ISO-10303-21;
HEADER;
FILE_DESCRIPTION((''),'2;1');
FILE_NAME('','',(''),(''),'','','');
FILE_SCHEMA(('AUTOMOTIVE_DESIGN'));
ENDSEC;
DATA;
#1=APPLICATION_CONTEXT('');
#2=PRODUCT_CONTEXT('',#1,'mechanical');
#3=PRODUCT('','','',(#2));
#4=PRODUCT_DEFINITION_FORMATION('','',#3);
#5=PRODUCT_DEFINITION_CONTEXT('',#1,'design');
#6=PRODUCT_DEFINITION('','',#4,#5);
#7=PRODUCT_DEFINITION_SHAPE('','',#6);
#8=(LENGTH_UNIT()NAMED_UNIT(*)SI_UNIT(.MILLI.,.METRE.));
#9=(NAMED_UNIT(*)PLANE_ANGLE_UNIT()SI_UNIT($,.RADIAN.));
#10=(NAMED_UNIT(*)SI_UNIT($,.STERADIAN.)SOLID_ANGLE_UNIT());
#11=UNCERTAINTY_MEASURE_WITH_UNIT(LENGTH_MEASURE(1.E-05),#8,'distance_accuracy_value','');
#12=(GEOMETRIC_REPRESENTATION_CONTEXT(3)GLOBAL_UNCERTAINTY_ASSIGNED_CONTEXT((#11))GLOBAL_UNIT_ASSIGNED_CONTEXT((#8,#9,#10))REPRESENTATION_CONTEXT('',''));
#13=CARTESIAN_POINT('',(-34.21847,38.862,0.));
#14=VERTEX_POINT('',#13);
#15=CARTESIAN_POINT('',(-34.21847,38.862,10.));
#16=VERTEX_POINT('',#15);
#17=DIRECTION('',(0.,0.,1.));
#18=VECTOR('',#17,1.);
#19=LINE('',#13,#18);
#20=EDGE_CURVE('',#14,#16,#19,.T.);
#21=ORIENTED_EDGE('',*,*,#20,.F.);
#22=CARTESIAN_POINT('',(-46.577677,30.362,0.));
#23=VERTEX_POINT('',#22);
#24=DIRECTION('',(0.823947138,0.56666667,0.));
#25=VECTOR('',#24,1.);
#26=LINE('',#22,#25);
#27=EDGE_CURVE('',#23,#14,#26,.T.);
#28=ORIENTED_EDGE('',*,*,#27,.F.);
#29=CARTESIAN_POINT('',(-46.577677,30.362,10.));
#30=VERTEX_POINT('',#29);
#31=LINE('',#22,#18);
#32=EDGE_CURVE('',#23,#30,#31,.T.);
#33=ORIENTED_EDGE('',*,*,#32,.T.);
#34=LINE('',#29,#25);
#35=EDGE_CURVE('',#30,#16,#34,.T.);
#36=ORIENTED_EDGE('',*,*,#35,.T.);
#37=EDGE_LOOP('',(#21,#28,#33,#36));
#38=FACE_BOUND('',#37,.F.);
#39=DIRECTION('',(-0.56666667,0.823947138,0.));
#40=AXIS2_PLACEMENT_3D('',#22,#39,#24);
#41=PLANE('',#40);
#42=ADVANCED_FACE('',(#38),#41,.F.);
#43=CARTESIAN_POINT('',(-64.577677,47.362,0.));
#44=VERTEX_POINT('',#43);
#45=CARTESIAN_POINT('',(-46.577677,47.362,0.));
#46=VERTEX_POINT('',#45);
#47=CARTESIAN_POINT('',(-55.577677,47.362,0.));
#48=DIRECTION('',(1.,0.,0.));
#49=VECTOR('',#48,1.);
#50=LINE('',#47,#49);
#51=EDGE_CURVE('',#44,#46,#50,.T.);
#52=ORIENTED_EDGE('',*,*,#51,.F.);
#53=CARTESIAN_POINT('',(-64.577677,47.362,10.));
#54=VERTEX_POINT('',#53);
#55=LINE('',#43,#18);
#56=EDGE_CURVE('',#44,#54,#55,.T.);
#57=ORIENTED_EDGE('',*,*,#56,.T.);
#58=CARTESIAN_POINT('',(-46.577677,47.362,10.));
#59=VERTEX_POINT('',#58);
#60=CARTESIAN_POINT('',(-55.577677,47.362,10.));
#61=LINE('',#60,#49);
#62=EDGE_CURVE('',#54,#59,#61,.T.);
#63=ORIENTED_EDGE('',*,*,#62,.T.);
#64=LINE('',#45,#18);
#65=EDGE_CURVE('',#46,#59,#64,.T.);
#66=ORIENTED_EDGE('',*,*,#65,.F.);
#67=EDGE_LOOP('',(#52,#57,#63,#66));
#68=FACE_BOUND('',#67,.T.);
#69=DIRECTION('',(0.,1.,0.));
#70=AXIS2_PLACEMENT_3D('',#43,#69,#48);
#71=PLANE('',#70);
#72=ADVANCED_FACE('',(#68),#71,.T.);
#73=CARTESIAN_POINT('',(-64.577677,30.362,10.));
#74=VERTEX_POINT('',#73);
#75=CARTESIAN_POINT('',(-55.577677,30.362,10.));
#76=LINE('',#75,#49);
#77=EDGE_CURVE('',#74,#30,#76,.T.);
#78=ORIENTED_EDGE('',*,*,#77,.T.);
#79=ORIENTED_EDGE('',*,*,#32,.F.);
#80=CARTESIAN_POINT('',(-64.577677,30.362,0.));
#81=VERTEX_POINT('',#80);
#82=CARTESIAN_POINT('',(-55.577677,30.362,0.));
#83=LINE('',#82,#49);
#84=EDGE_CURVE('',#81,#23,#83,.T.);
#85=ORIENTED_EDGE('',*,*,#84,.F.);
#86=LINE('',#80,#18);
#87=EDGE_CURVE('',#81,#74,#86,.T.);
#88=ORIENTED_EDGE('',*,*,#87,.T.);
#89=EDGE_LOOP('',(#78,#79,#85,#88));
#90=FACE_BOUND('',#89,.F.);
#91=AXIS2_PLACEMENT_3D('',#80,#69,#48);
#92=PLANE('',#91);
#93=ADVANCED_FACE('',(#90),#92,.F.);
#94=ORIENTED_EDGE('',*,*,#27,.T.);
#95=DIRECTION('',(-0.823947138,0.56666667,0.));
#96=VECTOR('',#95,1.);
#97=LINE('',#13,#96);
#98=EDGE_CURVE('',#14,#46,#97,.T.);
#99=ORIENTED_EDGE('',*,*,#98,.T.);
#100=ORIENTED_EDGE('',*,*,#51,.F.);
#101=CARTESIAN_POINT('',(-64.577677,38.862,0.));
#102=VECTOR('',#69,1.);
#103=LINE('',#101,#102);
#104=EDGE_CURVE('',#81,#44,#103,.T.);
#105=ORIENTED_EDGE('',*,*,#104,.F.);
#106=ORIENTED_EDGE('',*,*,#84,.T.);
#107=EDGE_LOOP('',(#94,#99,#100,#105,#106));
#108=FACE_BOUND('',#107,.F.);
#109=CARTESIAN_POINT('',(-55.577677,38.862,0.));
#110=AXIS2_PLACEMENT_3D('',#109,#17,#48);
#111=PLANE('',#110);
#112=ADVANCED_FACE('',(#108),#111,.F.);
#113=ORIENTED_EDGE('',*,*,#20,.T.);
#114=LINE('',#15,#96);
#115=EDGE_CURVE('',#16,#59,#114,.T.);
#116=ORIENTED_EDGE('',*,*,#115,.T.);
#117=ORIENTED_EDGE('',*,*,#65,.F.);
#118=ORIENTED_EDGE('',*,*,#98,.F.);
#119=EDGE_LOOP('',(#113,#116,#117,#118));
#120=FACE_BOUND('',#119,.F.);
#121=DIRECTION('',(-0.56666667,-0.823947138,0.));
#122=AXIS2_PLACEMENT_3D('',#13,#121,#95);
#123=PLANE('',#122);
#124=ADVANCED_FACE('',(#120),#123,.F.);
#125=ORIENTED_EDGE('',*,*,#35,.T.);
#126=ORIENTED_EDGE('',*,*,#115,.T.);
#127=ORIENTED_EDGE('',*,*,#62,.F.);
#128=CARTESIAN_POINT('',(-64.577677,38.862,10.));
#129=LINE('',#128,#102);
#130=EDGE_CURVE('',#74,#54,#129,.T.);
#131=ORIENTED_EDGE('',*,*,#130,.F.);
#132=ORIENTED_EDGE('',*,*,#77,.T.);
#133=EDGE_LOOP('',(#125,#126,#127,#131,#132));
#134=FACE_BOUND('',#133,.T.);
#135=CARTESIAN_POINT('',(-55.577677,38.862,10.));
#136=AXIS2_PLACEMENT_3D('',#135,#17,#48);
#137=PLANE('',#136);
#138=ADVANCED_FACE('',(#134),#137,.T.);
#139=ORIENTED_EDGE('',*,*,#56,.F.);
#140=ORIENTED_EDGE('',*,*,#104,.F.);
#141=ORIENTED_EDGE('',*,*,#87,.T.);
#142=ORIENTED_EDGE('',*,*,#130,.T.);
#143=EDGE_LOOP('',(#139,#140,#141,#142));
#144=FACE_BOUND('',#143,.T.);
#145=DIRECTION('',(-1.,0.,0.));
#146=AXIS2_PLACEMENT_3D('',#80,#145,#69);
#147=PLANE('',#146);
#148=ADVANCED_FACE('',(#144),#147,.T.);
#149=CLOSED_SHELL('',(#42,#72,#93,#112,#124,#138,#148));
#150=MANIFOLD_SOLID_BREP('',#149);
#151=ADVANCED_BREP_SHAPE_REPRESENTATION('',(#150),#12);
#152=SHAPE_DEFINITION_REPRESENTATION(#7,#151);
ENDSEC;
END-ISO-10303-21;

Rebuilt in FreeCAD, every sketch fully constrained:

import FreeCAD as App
import Part
import Sketcher

V = App.Vector
Q = App.Units.Quantity

doc = App.newDocument("Part")
body = doc.addObject("PartDesign::Body", "Body")

sketch1 = body.newObject("Sketcher::SketchObject", "Sketch")
sketch1.AttachmentSupport = (doc.getObject("XY_Plane"), [""])
sketch1.MapMode = "FlatFace"
sketch1.addGeometry([
    Part.LineSegment(V(-65, 47, 0), V(-65, 30, 0)),
    Part.LineSegment(V(-65, 30, 0), V(-47, 30, 0)),
    Part.LineSegment(V(-47, 30, 0), V(-34, 39, 0)),
    Part.LineSegment(V(-34, 39, 0), V(-47, 47, 0)),
    Part.LineSegment(V(-47, 47, 0), V(-65, 47, 0)),
], False)
sketch1.addConstraint([
    Sketcher.Constraint("Coincident", 0, 2, 1, 1),
    Sketcher.Constraint("Coincident", 1, 2, 2, 1),
    Sketcher.Constraint("Coincident", 2, 2, 3, 1),
    Sketcher.Constraint("Coincident", 3, 2, 4, 1),
    Sketcher.Constraint("Coincident", 4, 2, 0, 1),
    Sketcher.Constraint("Vertical", 0),
    Sketcher.Constraint("Horizontal", 1),
    Sketcher.Constraint("Horizontal", 4),
    Sketcher.Constraint("Vertical", 1, 2, 3, 2),
    Sketcher.Constraint("Equal", 2, 3),
    Sketcher.Constraint("DistanceX", 1, 1, 1, 2, Q("18 mm")),
    Sketcher.Constraint("DistanceY", 0, 2, 0, 1, Q("17 mm")),
    Sketcher.Constraint("Distance", 2, Q("15 mm")),
    Sketcher.Constraint("DistanceY", -1, 1, 0, 2, Q("30.362 mm")),
    Sketcher.Constraint("DistanceX", 2, 2, -1, 1, Q("34.21847 mm")),
])
pad1 = body.newObject("PartDesign::Pad", "Pad")
pad1.Profile = sketch1
pad1.Length = 10

doc.recompute()
